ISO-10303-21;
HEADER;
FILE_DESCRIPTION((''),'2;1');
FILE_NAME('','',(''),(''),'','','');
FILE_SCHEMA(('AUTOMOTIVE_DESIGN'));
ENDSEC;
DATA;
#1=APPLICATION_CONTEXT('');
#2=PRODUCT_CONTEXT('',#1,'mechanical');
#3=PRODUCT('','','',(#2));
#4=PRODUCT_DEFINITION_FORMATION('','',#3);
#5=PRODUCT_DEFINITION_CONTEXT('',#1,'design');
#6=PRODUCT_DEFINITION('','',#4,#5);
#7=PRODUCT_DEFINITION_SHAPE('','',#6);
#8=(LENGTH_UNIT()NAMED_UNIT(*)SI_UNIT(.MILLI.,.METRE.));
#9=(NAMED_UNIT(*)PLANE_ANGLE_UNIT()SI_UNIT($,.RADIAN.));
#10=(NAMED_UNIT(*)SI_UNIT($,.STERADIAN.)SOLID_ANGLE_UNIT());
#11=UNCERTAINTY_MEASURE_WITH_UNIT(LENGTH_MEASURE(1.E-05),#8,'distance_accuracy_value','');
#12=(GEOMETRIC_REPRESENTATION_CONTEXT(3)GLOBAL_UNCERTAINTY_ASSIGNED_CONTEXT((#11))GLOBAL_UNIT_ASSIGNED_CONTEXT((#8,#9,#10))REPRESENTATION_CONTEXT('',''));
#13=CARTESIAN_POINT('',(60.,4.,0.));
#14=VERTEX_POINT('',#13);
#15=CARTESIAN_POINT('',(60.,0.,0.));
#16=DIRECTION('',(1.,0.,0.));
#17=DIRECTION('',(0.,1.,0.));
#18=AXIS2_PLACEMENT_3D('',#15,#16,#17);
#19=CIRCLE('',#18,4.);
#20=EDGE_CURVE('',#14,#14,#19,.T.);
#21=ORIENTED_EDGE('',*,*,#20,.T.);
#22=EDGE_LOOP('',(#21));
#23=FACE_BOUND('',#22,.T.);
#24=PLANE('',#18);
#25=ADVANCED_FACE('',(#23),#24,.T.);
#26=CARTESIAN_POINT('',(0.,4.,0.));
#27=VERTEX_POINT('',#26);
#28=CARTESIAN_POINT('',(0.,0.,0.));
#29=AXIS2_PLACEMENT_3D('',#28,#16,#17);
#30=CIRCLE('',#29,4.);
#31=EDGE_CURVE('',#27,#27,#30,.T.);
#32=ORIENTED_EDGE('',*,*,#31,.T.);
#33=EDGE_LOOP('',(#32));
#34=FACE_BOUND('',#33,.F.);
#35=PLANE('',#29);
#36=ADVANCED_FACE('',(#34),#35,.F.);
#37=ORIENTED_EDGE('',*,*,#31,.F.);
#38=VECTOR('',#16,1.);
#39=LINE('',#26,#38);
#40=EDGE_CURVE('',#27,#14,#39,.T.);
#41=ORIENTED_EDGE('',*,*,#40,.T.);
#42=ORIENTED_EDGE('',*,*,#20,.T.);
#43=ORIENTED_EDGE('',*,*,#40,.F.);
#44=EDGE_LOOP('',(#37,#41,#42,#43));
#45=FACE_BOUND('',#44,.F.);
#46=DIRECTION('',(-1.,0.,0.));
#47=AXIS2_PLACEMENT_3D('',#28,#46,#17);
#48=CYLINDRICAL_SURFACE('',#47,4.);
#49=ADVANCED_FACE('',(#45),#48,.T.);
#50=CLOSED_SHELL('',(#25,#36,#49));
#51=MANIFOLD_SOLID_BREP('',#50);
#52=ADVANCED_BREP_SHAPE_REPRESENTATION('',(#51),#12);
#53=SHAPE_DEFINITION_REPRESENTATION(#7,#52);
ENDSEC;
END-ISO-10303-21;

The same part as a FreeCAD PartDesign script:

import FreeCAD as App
import Part
import Sketcher

V = App.Vector

doc = App.newDocument("Part")
params = doc.addObject("Spreadsheet::Sheet", "Params")
for row, (alias, value) in enumerate([
    ("sketch1_diameter", "8 mm"),
    ("pad1_length", "60 mm"),
], start=1):
    params.set(f"A{row}", alias)
    params.set(f"B{row}", "=" + value)
    params.setAlias(f"B{row}", alias)

body = doc.addObject("PartDesign::Body", "Body")

# Sketch on YZ plane
sketch1 = body.newObject("Sketcher::SketchObject", "Sketch")
sketch1.AttachmentSupport = (doc.getObject("YZ_Plane"), [""])
sketch1.MapMode = "FlatFace"
sketch1.addGeometry(Part.Circle(V(0, 0, 0), V(0, 0, 1), 4), False)
sketch1.addConstraint([
    Sketcher.Constraint("Coincident", 0, 3, -1, 1),
    Sketcher.Constraint("Diameter", 0, 8.0),
])
sketch1.setExpression("Constraints[1]", "Params.sketch1_diameter")
pad1 = body.newObject("PartDesign::Pad", "Pad")
pad1.Profile = sketch1
pad1.setExpression("Length", "Params.pad1_length")

doc.recompute()
